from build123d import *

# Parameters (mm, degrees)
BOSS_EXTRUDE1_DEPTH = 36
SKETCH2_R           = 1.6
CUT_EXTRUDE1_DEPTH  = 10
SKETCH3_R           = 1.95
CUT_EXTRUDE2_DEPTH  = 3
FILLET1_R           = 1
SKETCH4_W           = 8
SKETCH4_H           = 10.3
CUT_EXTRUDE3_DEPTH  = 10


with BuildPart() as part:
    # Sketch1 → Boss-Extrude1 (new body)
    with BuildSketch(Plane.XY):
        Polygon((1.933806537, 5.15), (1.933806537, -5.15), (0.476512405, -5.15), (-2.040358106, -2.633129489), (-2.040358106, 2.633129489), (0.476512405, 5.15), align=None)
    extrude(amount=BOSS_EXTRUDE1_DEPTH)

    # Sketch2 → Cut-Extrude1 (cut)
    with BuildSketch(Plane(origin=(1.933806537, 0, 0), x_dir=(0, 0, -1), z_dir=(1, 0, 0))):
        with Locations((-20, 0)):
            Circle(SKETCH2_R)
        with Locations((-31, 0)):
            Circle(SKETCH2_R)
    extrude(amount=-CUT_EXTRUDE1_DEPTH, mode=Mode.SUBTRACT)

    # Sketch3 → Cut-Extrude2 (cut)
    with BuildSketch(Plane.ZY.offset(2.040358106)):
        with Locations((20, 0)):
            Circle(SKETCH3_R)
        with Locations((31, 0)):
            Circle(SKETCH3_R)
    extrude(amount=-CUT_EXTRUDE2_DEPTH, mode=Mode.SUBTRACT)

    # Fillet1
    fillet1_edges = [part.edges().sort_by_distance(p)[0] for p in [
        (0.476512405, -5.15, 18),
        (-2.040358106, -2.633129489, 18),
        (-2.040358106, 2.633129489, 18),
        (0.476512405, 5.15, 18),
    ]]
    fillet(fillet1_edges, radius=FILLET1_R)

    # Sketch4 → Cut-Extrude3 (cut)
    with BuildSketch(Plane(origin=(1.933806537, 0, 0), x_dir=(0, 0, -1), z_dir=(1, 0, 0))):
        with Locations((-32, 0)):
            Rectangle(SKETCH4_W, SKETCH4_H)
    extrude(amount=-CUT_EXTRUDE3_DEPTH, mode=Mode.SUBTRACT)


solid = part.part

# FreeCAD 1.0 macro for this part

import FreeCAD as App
import Part
import Sketcher
from FreeCAD import Vector


def edges_at(feature, points):
    """Names of the edges that pass closest to the given points."""
    edges = feature.Shape.Edges
    near = lambda p: min(range(len(edges)), key=lambda i: edges[i].distToShape(Part.Vertex(*p))[0])
    return sorted({f"Edge{near(p) + 1}" for p in points})

doc = App.newDocument("Part")
body = doc.addObject("PartDesign::Body", "Body")

sketch1 = doc.addObject("Sketcher::SketchObject", "Sketch")
body.addObject(sketch1)
sketch1.AttachmentSupport = (doc.XY_Plane, [""])
sketch1.MapMode = "FlatFace"
sketch1.addGeometry([
    Part.LineSegment(Vector(1.9, -5.2, 0), Vector(1.9, 5.2, 0)),
    Part.LineSegment(Vector(1.9, 5.2, 0), Vector(0.5, 5.2, 0)),
    Part.LineSegment(Vector(0.5, 5.2, 0), Vector(-2, 2.6, 0)),
    Part.LineSegment(Vector(-2, 2.6, 0), Vector(-2, -2.6, 0)),
    Part.LineSegment(Vector(-2, -2.6, 0), Vector(0.5, -5.2, 0)),
    Part.LineSegment(Vector(0.5, -5.2, 0), Vector(1.9, -5.2, 0)),
], False)
sketch1.addConstraint([
    Sketcher.Constraint("Coincident", 0, 2, 1, 1),
    Sketcher.Constraint("Coincident", 1, 2, 2, 1),
    Sketcher.Constraint("Coincident", 2, 2, 3, 1),
    Sketcher.Constraint("Coincident", 3, 2, 4, 1),
    Sketcher.Constraint("Coincident", 4, 2, 5, 1),
    Sketcher.Constraint("Coincident", 5, 2, 0, 1),
    Sketcher.Constraint("Vertical", 0),
    Sketcher.Constraint("Horizontal", 1),
    Sketcher.Constraint("Vertical", 3),
    Sketcher.Constraint("Horizontal", 5),
    Sketcher.Constraint("Symmetric", 1, 2, 4, 2, -1),
    Sketcher.Constraint("Perpendicular", 2, 4),
    Sketcher.Constraint("Equal", 2, 4),
    Sketcher.Constraint("DistanceY", 0, 1, 0, 2, 10.3),
    Sketcher.Constraint("DistanceY", 3, 2, 3, 1, 5.266259),
    Sketcher.Constraint("DistanceX", 1, 2, 1, 1, 1.457294),
    Sketcher.Constraint("DistanceX", 2, 2, -1, 1, 2.040358),
])
pad1 = doc.addObject("PartDesign::Pad", "Pad")
body.addObject(pad1)
pad1.Profile = sketch1
pad1.Length = 36

sketch2 = doc.addObject("Sketcher::SketchObject", "Sketch001")
body.addObject(sketch2)
sketch2.AttachmentSupport = (doc.YZ_Plane, [""])
sketch2.MapMode = "FlatFace"
sketch2.AttachmentOffset = App.Placement(Vector(0, 0, 1.933807), App.Rotation())
sketch2.addGeometry([
    Part.Circle(Vector(0, 20, 0), Vector(0, 0, 1), 1.6),
    Part.Circle(Vector(0, 31, 0), Vector(0, 0, 1), 1.6),
], False)
sketch2.addConstraint([
    Sketcher.Constraint("Equal", 0, 1),
    Sketcher.Constraint("PointOnObject", 0, 3, -2),
    Sketcher.Constraint("PointOnObject", 1, 3, -2),
    Sketcher.Constraint("Diameter", 0, 3.2),
    Sketcher.Constraint("DistanceY", -1, 1, 0, 3, 20.0),
    Sketcher.Constraint("DistanceY", -1, 1, 1, 3, 31.0),
])
pocket1 = doc.addObject("PartDesign::Pocket", "Pocket")
body.addObject(pocket1)
pocket1.Profile = sketch2
pocket1.Length = 10

sketch3 = doc.addObject("Sketcher::SketchObject", "Sketch002")
body.addObject(sketch3)
sketch3.AttachmentSupport = (doc.YZ_Plane, [""])
sketch3.MapMode = "FlatFace"
sketch3.AttachmentOffset = App.Placement(Vector(0, 0, -2.040358), App.Rotation())
sketch3.addGeometry([
    Part.Circle(Vector(0, 20, 0), Vector(0, 0, 1), 1.9),
    Part.Circle(Vector(0, 31, 0), Vector(0, 0, 1), 1.9),
], False)
sketch3.addConstraint([
    Sketcher.Constraint("Equal", 0, 1),
    Sketcher.Constraint("PointOnObject", 0, 3, -2),
    Sketcher.Constraint("PointOnObject", 1, 3, -2),
    Sketcher.Constraint("Diameter", 0, 3.9),
    Sketcher.Constraint("DistanceY", -1, 1, 0, 3, 20.0),
    Sketcher.Constraint("DistanceY", -1, 1, 1, 3, 31.0),
])
pocket2 = doc.addObject("PartDesign::Pocket", "Pocket001")
body.addObject(pocket2)
pocket2.Profile = sketch3
pocket2.Length = 3
pocket2.Reversed = True
doc.recompute()

fillet = doc.addObject("PartDesign::Fillet", "Fillet")
body.addObject(fillet)
fillet.Base = (pocket2, edges_at(pocket2, [
    (0.477, -5.15, 18),
    (-2.04, -2.633, 18),
    (-2.04, 2.633, 18),
    (0.477, 5.15, 18),
]))
fillet.Radius = 1

sketch4 = doc.addObject("Sketcher::SketchObject", "Sketch003")
body.addObject(sketch4)
sketch4.AttachmentSupport = (doc.YZ_Plane, [""])
sketch4.MapMode = "FlatFace"
sketch4.AttachmentOffset = App.Placement(Vector(0, 0, 1.933807), App.Rotation())
sketch4.addGeometry([
    Part.LineSegment(Vector(5, 36, 0), Vector(-5, 36, 0)),
    Part.LineSegment(Vector(-5, 36, 0), Vector(-5, 28, 0)),
    Part.LineSegment(Vector(-5, 28, 0), Vector(5, 28, 0)),
    Part.LineSegment(Vector(5, 28, 0), Vector(5, 36, 0)),
], False)
sketch4.addConstraint([
    Sketcher.Constraint("Coincident", 0, 2, 1, 1),
    Sketcher.Constraint("Coincident", 1, 2, 2, 1),
    Sketcher.Constraint("Coincident", 2, 2, 3, 1),
    Sketcher.Constraint("Coincident", 3, 2, 0, 1),
    Sketcher.Constraint("Horizontal", 0),
    Sketcher.Constraint("Vertical", 1),
    Sketcher.Constraint("Horizontal", 2),
    Sketcher.Constraint("Vertical", 3),
    Sketcher.Constraint("DistanceY", 1, 2, 1, 1, 8.0),
    Sketcher.Constraint("DistanceX", 0, 2, 0, 1, 10.3),
    Sketcher.Constraint("DistanceY", -1, 1, 0, 2, 36.0),
    Sketcher.Constraint("DistanceX", 0, 2, -1, 1, 5.15),
])
pocket3 = doc.addObject("PartDesign::Pocket", "Pocket002")
body.addObject(pocket3)
pocket3.Profile = sketch4
pocket3.Length = 10

doc.recompute()
